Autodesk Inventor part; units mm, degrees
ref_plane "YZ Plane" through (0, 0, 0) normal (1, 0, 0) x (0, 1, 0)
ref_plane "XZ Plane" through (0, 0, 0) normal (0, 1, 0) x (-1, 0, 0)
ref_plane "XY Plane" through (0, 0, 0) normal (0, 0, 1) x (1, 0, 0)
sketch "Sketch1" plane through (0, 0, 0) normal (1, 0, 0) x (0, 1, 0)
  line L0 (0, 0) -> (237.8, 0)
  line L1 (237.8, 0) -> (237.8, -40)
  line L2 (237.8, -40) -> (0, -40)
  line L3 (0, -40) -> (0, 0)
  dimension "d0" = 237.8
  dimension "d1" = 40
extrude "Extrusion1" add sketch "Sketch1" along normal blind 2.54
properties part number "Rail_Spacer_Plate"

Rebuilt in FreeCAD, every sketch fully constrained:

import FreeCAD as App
import Part
import Sketcher

V = App.Vector
Q = App.Units.Quantity

doc = App.newDocument("Part")
body = doc.addObject("PartDesign::Body", "Body")

# Sketch on YZ plane
sketch1 = doc.addObject("Sketcher::SketchObject", "Sketch")
body.addObject(sketch1)
sketch1.AttachmentSupport = (doc.YZ_Plane, [""])
sketch1.MapMode = "FlatFace"
sketch1.addGeometry(Part.LineSegment(V(238, 0, 0), V(0, 0, 0)), False)
sketch1.addGeometry(Part.LineSegment(V(0, 0, 0), V(0, -40, 0)), False)
sketch1.addGeometry(Part.LineSegment(V(0, -40, 0), V(238, -40, 0)), False)
sketch1.addGeometry(Part.LineSegment(V(238, -40, 0), V(238, 0, 0)), False)
sketch1.addConstraint(Sketcher.Constraint("Coincident", 0, 2, 1, 1))
sketch1.addConstraint(Sketcher.Constraint("Coincident", 1, 2, 2, 1))
sketch1.addConstraint(Sketcher.Constraint("Coincident", 2, 2, 3, 1))
sketch1.addConstraint(Sketcher.Constraint("Coincident", 3, 2, 0, 1))
sketch1.addConstraint(Sketcher.Constraint("Horizontal", 0))
sketch1.addConstraint(Sketcher.Constraint("Vertical", 1))
sketch1.addConstraint(Sketcher.Constraint("Horizontal", 2))
sketch1.addConstraint(Sketcher.Constraint("Vertical", 3))
sketch1.addConstraint(Sketcher.Constraint("Coincident", 0, 2, -1, 1))
sketch1.addConstraint(Sketcher.Constraint("DistanceX", 0, 2, 0, 1, Q("9.3622 in")))
sketch1.addConstraint(Sketcher.Constraint("DistanceY", 1, 2, 1, 1, Q("1.5748 in")))
pad1 = doc.addObject("PartDesign::Pad", "Pad")
body.addObject(pad1)
pad1.Profile = sketch1
pad1.Length = Q("0.1 in")

doc.recompute()
